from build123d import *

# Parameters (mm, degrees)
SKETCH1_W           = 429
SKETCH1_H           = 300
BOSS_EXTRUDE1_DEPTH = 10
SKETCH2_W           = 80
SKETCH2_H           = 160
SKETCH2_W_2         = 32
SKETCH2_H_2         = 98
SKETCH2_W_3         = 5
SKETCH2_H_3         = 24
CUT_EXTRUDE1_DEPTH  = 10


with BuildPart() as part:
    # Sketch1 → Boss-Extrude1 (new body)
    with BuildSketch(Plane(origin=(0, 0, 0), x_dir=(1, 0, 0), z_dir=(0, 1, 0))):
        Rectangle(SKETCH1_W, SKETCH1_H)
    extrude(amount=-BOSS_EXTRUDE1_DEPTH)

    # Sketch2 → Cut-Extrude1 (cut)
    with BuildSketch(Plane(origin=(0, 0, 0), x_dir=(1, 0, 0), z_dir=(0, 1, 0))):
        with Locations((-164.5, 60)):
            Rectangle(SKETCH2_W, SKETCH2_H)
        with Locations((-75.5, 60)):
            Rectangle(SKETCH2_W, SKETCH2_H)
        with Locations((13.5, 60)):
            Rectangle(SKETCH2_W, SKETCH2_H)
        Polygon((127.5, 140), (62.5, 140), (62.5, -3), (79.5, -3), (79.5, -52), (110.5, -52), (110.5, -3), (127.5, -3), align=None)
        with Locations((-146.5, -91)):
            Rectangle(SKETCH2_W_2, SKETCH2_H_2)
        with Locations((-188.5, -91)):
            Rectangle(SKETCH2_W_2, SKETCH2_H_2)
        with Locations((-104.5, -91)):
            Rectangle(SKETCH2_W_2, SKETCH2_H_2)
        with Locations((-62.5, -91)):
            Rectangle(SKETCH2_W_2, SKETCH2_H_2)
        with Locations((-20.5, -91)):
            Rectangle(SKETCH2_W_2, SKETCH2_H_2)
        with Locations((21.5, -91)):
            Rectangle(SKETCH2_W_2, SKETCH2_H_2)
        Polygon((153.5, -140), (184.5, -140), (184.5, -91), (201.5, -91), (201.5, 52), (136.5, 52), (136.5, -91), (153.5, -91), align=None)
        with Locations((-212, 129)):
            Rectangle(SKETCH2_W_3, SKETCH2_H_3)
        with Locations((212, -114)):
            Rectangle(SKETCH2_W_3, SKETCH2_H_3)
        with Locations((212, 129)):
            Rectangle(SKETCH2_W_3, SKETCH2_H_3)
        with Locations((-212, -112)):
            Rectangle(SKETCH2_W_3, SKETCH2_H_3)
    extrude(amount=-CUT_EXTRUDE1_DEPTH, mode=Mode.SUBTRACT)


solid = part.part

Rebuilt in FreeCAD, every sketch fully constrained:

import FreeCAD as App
import Part
import Sketcher
from FreeCAD import Vector

doc = App.newDocument("Part")
body = doc.addObject("PartDesign::Body", "Body")

sketch1 = body.newObject("Sketcher::SketchObject", "Sketch")
sketch1.AttachmentSupport = (doc.getObject("XZ_Plane"), [""])
sketch1.MapMode = "FlatFace"
sketch1.addGeometry(Part.LineSegment(Vector(-214.5, -150, 0), Vector(-214.5, 150, 0)), False)
sketch1.addGeometry(Part.LineSegment(Vector(-214.5, 150, 0), Vector(214.5, 150, 0)), False)
sketch1.addGeometry(Part.LineSegment(Vector(214.5, 150, 0), Vector(214.5, -150, 0)), False)
sketch1.addGeometry(Part.LineSegment(Vector(214.5, -150, 0), Vector(-214.5, -150, 0)), False)
sketch1.addConstraint(Sketcher.Constraint("Coincident", 0, 2, 1, 1))
sketch1.addConstraint(Sketcher.Constraint("Coincident", 1, 2, 2, 1))
sketch1.addConstraint(Sketcher.Constraint("Coincident", 2, 2, 3, 1))
sketch1.addConstraint(Sketcher.Constraint("Coincident", 3, 2, 0, 1))
sketch1.addConstraint(Sketcher.Constraint("Vertical", 0))
sketch1.addConstraint(Sketcher.Constraint("Horizontal", 1))
sketch1.addConstraint(Sketcher.Constraint("Vertical", 2))
sketch1.addConstraint(Sketcher.Constraint("Horizontal", 3))
sketch1.addConstraint(Sketcher.Constraint("Symmetric", 0, 2, 2, 2, -1, 1))
sketch1.addConstraint(Sketcher.Constraint("DistanceX", 1, 1, 1, 2, 429.0))
sketch1.addConstraint(Sketcher.Constraint("DistanceY", 0, 1, 0, 2, 300.0))
pad1 = body.newObject("PartDesign::Pad", "Pad")
pad1.Profile = sketch1
pad1.Length = 10

sketch2 = body.newObject("Sketcher::SketchObject", "Sketch001")
sketch2.AttachmentSupport = (doc.getObject("XZ_Plane"), [""])
sketch2.MapMode = "FlatFace"
sketch2.addGeometry(Part.LineSegment(Vector(-204.5, -140, 0), Vector(-204.5, 20, 0)), False)
sketch2.addGeometry(Part.LineSegment(Vector(-204.5, 20, 0), Vector(-124.5, 20, 0)), False)
sketch2.addGeometry(Part.LineSegment(Vector(-124.5, 20, 0), Vector(-124.5, -140, 0)), False)
sketch2.addGeometry(Part.LineSegment(Vector(-124.5, -140, 0), Vector(-204.5, -140, 0)), False)
sketch2.addGeometry(Part.LineSegment(Vector(-115.5, -140, 0), Vector(-115.5, 20, 0)), False)
sketch2.addGeometry(Part.LineSegment(Vector(-115.5, 20, 0), Vector(-35.5, 20, 0)), False)
sketch2.addGeometry(Part.LineSegment(Vector(-35.5, 20, 0), Vector(-35.5, -140, 0)), False)
sketch2.addGeometry(Part.LineSegment(Vector(-35.5, -140, 0), Vector(-115.5, -140, 0)), False)
sketch2.addGeometry(Part.LineSegment(Vector(-26.5, -140, 0), Vector(-26.5, 20, 0)), False)
sketch2.addGeometry(Part.LineSegment(Vector(-26.5, 20, 0), Vector(53.5, 20, 0)), False)
sketch2.addGeometry(Part.LineSegment(Vector(53.5, 20, 0), Vector(53.5, -140, 0)), False)
sketch2.addGeometry(Part.LineSegment(Vector(53.5, -140, 0), Vector(-26.5, -140, 0)), False)
sketch2.addGeometry(Part.LineSegment(Vector(127.5, -140, 0), Vector(62.5, -140, 0)), False)
sketch2.addGeometry(Part.LineSegment(Vector(62.5, -140, 0), Vector(62.5, 3, 0)), False)
sketch2.addGeometry(Part.LineSegment(Vector(62.5, 3, 0), Vector(79.5, 3, 0)), False)
sketch2.addGeometry(Part.LineSegment(Vector(79.5, 3, 0), Vector(79.5, 52, 0)), False)
sketch2.addGeometry(Part.LineSegment(Vector(79.5, 52, 0), Vector(110.5, 52, 0)), False)
sketch2.addGeometry(Part.LineSegment(Vector(110.5, 52, 0), Vector(110.5, 3, 0)), False)
sketch2.addGeometry(Part.LineSegment(Vector(110.5, 3, 0), Vector(127.5, 3, 0)), False)
sketch2.addGeometry(Part.LineSegment(Vector(127.5, 3, 0), Vector(127.5, -140, 0)), False)
sketch2.addGeometry(Part.LineSegment(Vector(-162.5, 42, 0), Vector(-162.5, 140, 0)), False)
sketch2.addGeometry(Part.LineSegment(Vector(-162.5, 140, 0), Vector(-130.5, 140, 0)), False)
sketch2.addGeometry(Part.LineSegment(Vector(-130.5, 140, 0), Vector(-130.5, 42, 0)), False)
sketch2.addGeometry(Part.LineSegment(Vector(-130.5, 42, 0), Vector(-162.5, 42, 0)), False)
sketch2.addGeometry(Part.LineSegment(Vector(-204.5, 42, 0), Vector(-204.5, 140, 0)), False)
sketch2.addGeometry(Part.LineSegment(Vector(-204.5, 140, 0), Vector(-172.5, 140, 0)), False)
sketch2.addGeometry(Part.LineSegment(Vector(-172.5, 140, 0), Vector(-172.5, 42, 0)), False)
sketch2.addGeometry(Part.LineSegment(Vector(-172.5, 42, 0), Vector(-204.5, 42, 0)), False)
sketch2.addGeometry(Part.LineSegment(Vector(-120.5, 42, 0), Vector(-120.5, 140, 0)), False)
sketch2.addGeometry(Part.LineSegment(Vector(-120.5, 140, 0), Vector(-88.5, 140, 0)), False)
sketch2.addGeometry(Part.LineSegment(Vector(-88.5, 140, 0), Vector(-88.5, 42, 0)), False)
sketch2.addGeometry(Part.LineSegment(Vector(-88.5, 42, 0), Vector(-120.5, 42, 0)), False)
sketch2.addGeometry(Part.LineSegment(Vector(-78.5, 42, 0), Vector(-78.5, 140, 0)), False)
sketch2.addGeometry(Part.LineSegment(Vector(-78.5, 140, 0), Vector(-46.5, 140, 0)), False)
sketch2.addGeometry(Part.LineSegment(Vector(-46.5, 140, 0), Vector(-46.5, 42, 0)), False)
sketch2.addGeometry(Part.LineSegment(Vector(-46.5, 42, 0), Vector(-78.5, 42, 0)), False)
sketch2.addGeometry(Part.LineSegment(Vector(-36.5, 42, 0), Vector(-36.5, 140, 0)), False)
sketch2.addGeometry(Part.LineSegment(Vector(-36.5, 140, 0), Vector(-4.5, 140, 0)), False)
sketch2.addGeometry(Part.LineSegment(Vector(-4.5, 140, 0), Vector(-4.5, 42, 0)), False)
sketch2.addGeometry(Part.LineSegment(Vector(-4.5, 42, 0), Vector(-36.5, 42, 0)), False)
sketch2.addGeometry(Part.LineSegment(Vector(5.5, 42, 0), Vector(5.5, 140, 0)), False)
sketch2.addGeometry(Part.LineSegment(Vector(5.5, 140, 0), Vector(37.5, 140, 0)), False)
sketch2.addGeometry(Part.LineSegment(Vector(37.5, 140, 0), Vector(37.5, 42, 0)), False)
sketch2.addGeometry(Part.LineSegment(Vector(37.5, 42, 0), Vector(5.5, 42, 0)), False)
sketch2.addGeometry(Part.LineSegment(Vector(153.5, 140, 0), Vector(184.5, 140, 0)), False)
sketch2.addGeometry(Part.LineSegment(Vector(184.5, 140, 0), Vector(184.5, 91, 0)), False)
sketch2.addGeometry(Part.LineSegment(Vector(184.5, 91, 0), Vector(201.5, 91, 0)), False)
sketch2.addGeometry(Part.LineSegment(Vector(201.5, 91, 0), Vector(201.5, -52, 0)), False)
sketch2.addGeometry(Part.LineSegment(Vector(201.5, -52, 0), Vector(136.5, -52, 0)), False)
sketch2.addGeometry(Part.LineSegment(Vector(136.5, -52, 0), Vector(136.5, 91, 0)), False)
sketch2.addGeometry(Part.LineSegment(Vector(136.5, 91, 0), Vector(153.5, 91, 0)), False)
sketch2.addGeometry(Part.LineSegment(Vector(153.5, 91, 0), Vector(153.5, 140, 0)), False)
sketch2.addGeometry(Part.LineSegment(Vector(-214.5, -141, 0), Vector(-214.5, -117, 0)), False)
sketch2.addGeometry(Part.LineSegment(Vector(-214.5, -117, 0), Vector(-209.5, -117, 0)), False)
sketch2.addGeometry(Part.LineSegment(Vector(-209.5, -117, 0), Vector(-209.5, -141, 0)), False)
sketch2.addGeometry(Part.LineSegment(Vector(-209.5, -141, 0), Vector(-214.5, -141, 0)), False)
sketch2.addGeometry(Part.LineSegment(Vector(209.5, 102, 0), Vector(209.5, 126, 0)), False)
sketch2.addGeometry(Part.LineSegment(Vector(209.5, 126, 0), Vector(214.5, 126, 0)), False)
sketch2.addGeometry(Part.LineSegment(Vector(214.5, 126, 0), Vector(214.5, 102, 0)), False)
sketch2.addGeometry(Part.LineSegment(Vector(214.5, 102, 0), Vector(209.5, 102, 0)), False)
sketch2.addGeometry(Part.LineSegment(Vector(209.5, -141, 0), Vector(209.5, -117, 0)), False)
sketch2.addGeometry(Part.LineSegment(Vector(209.5, -117, 0), Vector(214.5, -117, 0)), False)
sketch2.addGeometry(Part.LineSegment(Vector(214.5, -117, 0), Vector(214.5, -141, 0)), False)
sketch2.addGeometry(Part.LineSegment(Vector(214.5, -141, 0), Vector(209.5, -141, 0)), False)
sketch2.addGeometry(Part.LineSegment(Vector(-214.5, 100, 0), Vector(-214.5, 124, 0)), False)
sketch2.addGeometry(Part.LineSegment(Vector(-214.5, 124, 0), Vector(-209.5, 124, 0)), False)
sketch2.addGeometry(Part.LineSegment(Vector(-209.5, 124, 0), Vector(-209.5, 100, 0)), False)
sketch2.addGeometry(Part.LineSegment(Vector(-209.5, 100, 0), Vector(-214.5, 100, 0)), False)
sketch2.addConstraint(Sketcher.Constraint("Coincident", 0, 2, 1, 1))
sketch2.addConstraint(Sketcher.Constraint("Coincident", 1, 2, 2, 1))
sketch2.addConstraint(Sketcher.Constraint("Coincident", 2, 2, 3, 1))
sketch2.addConstraint(Sketcher.Constraint("Coincident", 3, 2, 0, 1))
sketch2.addConstraint(Sketcher.Constraint("Coincident", 4, 2, 5, 1))
sketch2.addConstraint(Sketcher.Constraint("Coincident", 5, 2, 6, 1))
sketch2.addConstraint(Sketcher.Constraint("Coincident", 6, 2, 7, 1))
sketch2.addConstraint(Sketcher.Constraint("Coincident", 7, 2, 4, 1))
sketch2.addConstraint(Sketcher.Constraint("Coincident", 8, 2, 9, 1))
sketch2.addConstraint(Sketcher.Constraint("Coincident", 9, 2, 10, 1))
sketch2.addConstraint(Sketcher.Constraint("Coincident", 10, 2, 11, 1))
sketch2.addConstraint(Sketcher.Constraint("Coincident", 11, 2, 8, 1))
sketch2.addConstraint(Sketcher.Constraint("Coincident", 12, 2, 13, 1))
sketch2.addConstraint(Sketcher.Constraint("Coincident", 13, 2, 14, 1))
sketch2.addConstraint(Sketcher.Constraint("Coincident", 14, 2, 15, 1))
sketch2.addConstraint(Sketcher.Constraint("Coincident", 15, 2, 16, 1))
sketch2.addConstraint(Sketcher.Constraint("Coincident", 16, 2, 17, 1))
sketch2.addConstraint(Sketcher.Constraint("Coincident", 17, 2, 18, 1))
sketch2.addConstraint(Sketcher.Constraint("Coincident", 18, 2, 19, 1))
sketch2.addConstraint(Sketcher.Constraint("Coincident", 19, 2, 12, 1))
sketch2.addConstraint(Sketcher.Constraint("Coincident", 20, 2, 21, 1))
sketch2.addConstraint(Sketcher.Constraint("Coincident", 21, 2, 22, 1))
sketch2.addConstraint(Sketcher.Constraint("Coincident", 22, 2, 23, 1))
sketch2.addConstraint(Sketcher.Constraint("Coincident", 23, 2, 20, 1))
sketch2.addConstraint(Sketcher.Constraint("Coincident", 24, 2, 25, 1))
sketch2.addConstraint(Sketcher.Constraint("Coincident", 25, 2, 26, 1))
sketch2.addConstraint(Sketcher.Constraint("Coincident", 26, 2, 27, 1))
sketch2.addConstraint(Sketcher.Constraint("Coincident", 27, 2, 24, 1))
sketch2.addConstraint(Sketcher.Constraint("Coincident", 28, 2, 29, 1))
sketch2.addConstraint(Sketcher.Constraint("Coincident", 29, 2, 30, 1))
sketch2.addConstraint(Sketcher.Constraint("Coincident", 30, 2, 31, 1))
sketch2.addConstraint(Sketcher.Constraint("Coincident", 31, 2, 28, 1))
sketch2.addConstraint(Sketcher.Constraint("Coincident", 32, 2, 33, 1))
sketch2.addConstraint(Sketcher.Constraint("Coincident", 33, 2, 34, 1))
sketch2.addConstraint(Sketcher.Constraint("Coincident", 34, 2, 35, 1))
sketch2.addConstraint(Sketcher.Constraint("Coincident", 35, 2, 32, 1))
sketch2.addConstraint(Sketcher.Constraint("Coincident", 36, 2, 37, 1))
sketch2.addConstraint(Sketcher.Constraint("Coincident", 37, 2, 38, 1))
sketch2.addConstraint(Sketcher.Constraint("Coincident", 38, 2, 39, 1))
sketch2.addConstraint(Sketcher.Constraint("Coincident", 39, 2, 36, 1))
sketch2.addConstraint(Sketcher.Constraint("Coincident", 40, 2, 41, 1))
sketch2.addConstraint(Sketcher.Constraint("Coincident", 41, 2, 42, 1))
sketch2.addConstraint(Sketcher.Constraint("Coincident", 42, 2, 43, 1))
sketch2.addConstraint(Sketcher.Constraint("Coincident", 43, 2, 40, 1))
sketch2.addConstraint(Sketcher.Constraint("Coincident", 44, 2, 45, 1))
sketch2.addConstraint(Sketcher.Constraint("Coincident", 45, 2, 46, 1))
sketch2.addConstraint(Sketcher.Constraint("Coincident", 46, 2, 47, 1))
sketch2.addConstraint(Sketcher.Constraint("Coincident", 47, 2, 48, 1))
sketch2.addConstraint(Sketcher.Constraint("Coincident", 48, 2, 49, 1))
sketch2.addConstraint(Sketcher.Constraint("Coincident", 49, 2, 50, 1))
sketch2.addConstraint(Sketcher.Constraint("Coincident", 50, 2, 51, 1))
sketch2.addConstraint(Sketcher.Constraint("Coincident", 51, 2, 44, 1))
sketch2.addConstraint(Sketcher.Constraint("Coincident", 52, 2, 53, 1))
sketch2.addConstraint(Sketcher.Constraint("Coincident", 53, 2, 54, 1))
sketch2.addConstraint(Sketcher.Constraint("Coincident", 54, 2, 55, 1))
sketch2.addConstraint(Sketcher.Constraint("Coincident", 55, 2, 52, 1))
sketch2.addConstraint(Sketcher.Constraint("Coincident", 56, 2, 57, 1))
sketch2.addConstraint(Sketcher.Constraint("Coincident", 57, 2, 58, 1))
sketch2.addConstraint(Sketcher.Constraint("Coincident", 58, 2, 59, 1))
sketch2.addConstraint(Sketcher.Constraint("Coincident", 59, 2, 56, 1))
sketch2.addConstraint(Sketcher.Constraint("Coincident", 60, 2, 61, 1))
sketch2.addConstraint(Sketcher.Constraint("Coincident", 61, 2, 62, 1))
sketch2.addConstraint(Sketcher.Constraint("Coincident", 62, 2, 63, 1))
sketch2.addConstraint(Sketcher.Constraint("Coincident", 63, 2, 60, 1))
sketch2.addConstraint(Sketcher.Constraint("Coincident", 64, 2, 65, 1))
sketch2.addConstraint(Sketcher.Constraint("Coincident", 65, 2, 66, 1))
sketch2.addConstraint(Sketcher.Constraint("Coincident", 66, 2, 67, 1))
sketch2.addConstraint(Sketcher.Constraint("Coincident", 67, 2, 64, 1))
sketch2.addConstraint(Sketcher.Constraint("Vertical", 0))
sketch2.addConstraint(Sketcher.Constraint("Horizontal", 1))
sketch2.addConstraint(Sketcher.Constraint("Vertical", 2))
sketch2.addConstraint(Sketcher.Constraint("Horizontal", 3))
sketch2.addConstraint(Sketcher.Constraint("Vertical", 4))
sketch2.addConstraint(Sketcher.Constraint("Horizontal", 5))
sketch2.addConstraint(Sketcher.Constraint("Vertical", 6))
sketch2.addConstraint(Sketcher.Constraint("Horizontal", 7))
sketch2.addConstraint(Sketcher.Constraint("Vertical", 8))
sketch2.addConstraint(Sketcher.Constraint("Horizontal", 9))
sketch2.addConstraint(Sketcher.Constraint("Vertical", 10))
sketch2.addConstraint(Sketcher.Constraint("Horizontal", 11))
sketch2.addConstraint(Sketcher.Constraint("Horizontal", 12))
sketch2.addConstraint(Sketcher.Constraint("Vertical", 13))
sketch2.addConstraint(Sketcher.Constraint("Horizontal", 14))
sketch2.addConstraint(Sketcher.Constraint("Vertical", 15))
sketch2.addConstraint(Sketcher.Constraint("Horizontal", 16))
sketch2.addConstraint(Sketcher.Constraint("Vertical", 17))
sketch2.addConstraint(Sketcher.Constraint("Horizontal", 18))
sketch2.addConstraint(Sketcher.Constraint("Vertical", 19))
sketch2.addConstraint(Sketcher.Constraint("Vertical", 20))
sketch2.addConstraint(Sketcher.Constraint("Horizontal", 21))
sketch2.addConstraint(Sketcher.Constraint("Vertical", 22))
sketch2.addConstraint(Sketcher.Constraint("Horizontal", 23))
sketch2.addConstraint(Sketcher.Constraint("Vertical", 24))
sketch2.addConstraint(Sketcher.Constraint("Horizontal", 25))
sketch2.addConstraint(Sketcher.Constraint("Vertical", 26))
sketch2.addConstraint(Sketcher.Constraint("Horizontal", 27))
sketch2.addConstraint(Sketcher.Constraint("Vertical", 28))
sketch2.addConstraint(Sketcher.Constraint("Horizontal", 29))
sketch2.addConstraint(Sketcher.Constraint("Vertical", 30))
sketch2.addConstraint(Sketcher.Constraint("Horizontal", 31))
sketch2.addConstraint(Sketcher.Constraint("Vertical", 32))
sketch2.addConstraint(Sketcher.Constraint("Horizontal", 33))
sketch2.addConstraint(Sketcher.Constraint("Vertical", 34))
sketch2.addConstraint(Sketcher.Constraint("Horizontal", 35))
sketch2.addConstraint(Sketcher.Constraint("Vertical", 36))
sketch2.addConstraint(Sketcher.Constraint("Horizontal", 37))
sketch2.addConstraint(Sketcher.Constraint("Vertical", 38))
sketch2.addConstraint(Sketcher.Constraint("Horizontal", 39))
sketch2.addConstraint(Sketcher.Constraint("Vertical", 40))
sketch2.addConstraint(Sketcher.Constraint("Horizontal", 41))
sketch2.addConstraint(Sketcher.Constraint("Vertical", 42))
sketch2.addConstraint(Sketcher.Constraint("Horizontal", 43))
sketch2.addConstraint(Sketcher.Constraint("Horizontal", 44))
sketch2.addConstraint(Sketcher.Constraint("Vertical", 45))
sketch2.addConstraint(Sketcher.Constraint("Horizontal", 46))
sketch2.addConstraint(Sketcher.Constraint("Vertical", 47))
sketch2.addConstraint(Sketcher.Constraint("Horizontal", 48))
sketch2.addConstraint(Sketcher.Constraint("Vertical", 49))
sketch2.addConstraint(Sketcher.Constraint("Horizontal", 50))
sketch2.addConstraint(Sketcher.Constraint("Vertical", 51))
sketch2.addConstraint(Sketcher.Constraint("Vertical", 52))
sketch2.addConstraint(Sketcher.Constraint("Horizontal", 53))
sketch2.addConstraint(Sketcher.Constraint("Vertical", 54))
sketch2.addConstraint(Sketcher.Constraint("Horizontal", 55))
sketch2.addConstraint(Sketcher.Constraint("Vertical", 56))
sketch2.addConstraint(Sketcher.Constraint("Horizontal", 57))
sketch2.addConstraint(Sketcher.Constraint("Vertical", 58))
sketch2.addConstraint(Sketcher.Constraint("Horizontal", 59))
sketch2.addConstraint(Sketcher.Constraint("Vertical", 60))
sketch2.addConstraint(Sketcher.Constraint("Horizontal", 61))
sketch2.addConstraint(Sketcher.Constraint("Vertical", 62))
sketch2.addConstraint(Sketcher.Constraint("Horizontal", 63))
sketch2.addConstraint(Sketcher.Constraint("Vertical", 64))
sketch2.addConstraint(Sketcher.Constraint("Horizontal", 65))
sketch2.addConstraint(Sketcher.Constraint("Vertical", 66))
sketch2.addConstraint(Sketcher.Constraint("Horizontal", 67))
sketch2.addConstraint(Sketcher.Constraint("Symmetric", 53, 2, 60, 2, -2))
sketch2.addConstraint(Sketcher.Constraint("Symmetric", 55, 2, 62, 2, -2))
sketch2.addConstraint(Sketcher.Constraint("Symmetric", 3, 2, 24, 2, -1))
sketch2.addConstraint(Sketcher.Constraint("Horizontal", 1, 2, 4, 2))
sketch2.addConstraint(Sketcher.Constraint("Horizontal", 3, 2, 6, 2))
sketch2.addConstraint(Sketcher.Constraint("Horizontal", 5, 2, 8, 2))
sketch2.addConstraint(Sketcher.Constraint("Horizontal", 7, 2, 10, 2))
sketch2.addConstraint(Sketcher.Constraint("Horizontal", 11, 2, 12, 2))
sketch2.addConstraint(Sketcher.Constraint("Horizontal", 14, 2, 17, 2))
sketch2.addConstraint(Sketcher.Constraint("Horizontal", 21, 2, 24, 2))
sketch2.addConstraint(Sketcher.Constraint("Horizontal", 23, 2, 26, 2))
sketch2.addConstraint(Sketcher.Constraint("Horizontal", 25, 2, 28, 2))
sketch2.addConstraint(Sketcher.Constraint("Horizontal", 27, 2, 30, 2))
sketch2.addConstraint(Sketcher.Constraint("Horizontal", 29, 2, 32, 2))
sketch2.addConstraint(Sketcher.Constraint("Horizontal", 31, 2, 34, 2))
sketch2.addConstraint(Sketcher.Constraint("Horizontal", 33, 2, 36, 2))
sketch2.addConstraint(Sketcher.Constraint("Horizontal", 35, 2, 38, 2))
sketch2.addConstraint(Sketcher.Constraint("Horizontal", 37, 2, 40, 2))
sketch2.addConstraint(Sketcher.Constraint("Horizontal", 39, 2, 42, 2))
sketch2.addConstraint(Sketcher.Constraint("Horizontal", 41, 2, 44, 2))
sketch2.addConstraint(Sketcher.Constraint("Horizontal", 46, 2, 49, 2))
sketch2.addConstraint(Sketcher.Constraint("Vertical", 59, 2, 60, 2))
sketch2.addConstraint(Sketcher.Constraint("Vertical", 58, 2, 61, 2))
sketch2.addConstraint(Sketcher.Constraint("Vertical", 55, 2, 64, 2))
sketch2.addConstraint(Sketcher.Constraint("Vertical", 54, 2, 65, 2))
sketch2.addConstraint(Sketcher.Constraint("Equal", 3, 5))
sketch2.addConstraint(Sketcher.Constraint("Equal", 7, 9))
sketch2.addConstraint(Sketcher.Constraint("Equal", 14, 18))
sketch2.addConstraint(Sketcher.Constraint("Equal", 23, 25))
sketch2.addConstraint(Sketcher.Constraint("Equal", 27, 29))
sketch2.addConstraint(Sketcher.Constraint("Equal", 31, 33))
sketch2.addConstraint(Sketcher.Constraint("Equal", 35, 37))
sketch2.addConstraint(Sketcher.Constraint("Equal", 39, 41))
sketch2.addConstraint(Sketcher.Constraint("Equal", 16, 44))
sketch2.addConstraint(Sketcher.Constraint("Equal", 18, 46))
sketch2.addConstraint(Sketcher.Constraint("Equal", 12, 48))
sketch2.addConstraint(Sketcher.Constraint("Equal", 17, 45))
sketch2.addConstraint(Sketcher.Constraint("Equal", 19, 47))
sketch2.addConstraint(Sketcher.Constraint("Equal", 54, 56))
sketch2.addConstraint(Sketcher.Constraint("Equal", 62, 64))
sketch2.addConstraint(Sketcher.Constraint("DistanceX", 1, 1, 1, 2, 80.0))
sketch2.addConstraint(Sketcher.Constraint("DistanceX", 12, 2, 12, 1, 65.0))
sketch2.addConstraint(Sketcher.Constraint("DistanceX", 14, 1, 14, 2, 17.0))
sketch2.addConstraint(Sketcher.Constraint("DistanceX", 21, 1, 21, 2, 32.0))
sketch2.addConstraint(Sketcher.Constraint("DistanceX", 53, 1, 53, 2, 5.0))
sketch2.addConstraint(Sketcher.Constraint("DistanceY", 0, 1, 0, 2, 160.0))
sketch2.addConstraint(Sketcher.Constraint("DistanceY", 13, 1, 13, 2, 143.0))
sketch2.addConstraint(Sketcher.Constraint("DistanceY", 15, 1, 15, 2, 49.0))
sketch2.addConstraint(Sketcher.Constraint("DistanceY", 20, 1, 20, 2, 98.0))
sketch2.addConstraint(Sketcher.Constraint("DistanceY", 52, 1, 52, 2, 24.0))
sketch2.addConstraint(Sketcher.Constraint("DistanceY", -1, 1, 0, 2, 20.0))
sketch2.addConstraint(Sketcher.Constraint("DistanceY", 52, 2, -1, 1, 117.0))
sketch2.addConstraint(Sketcher.Constraint("DistanceY", -1, 1, 56, 2, 126.0))
sketch2.addConstraint(Sketcher.Constraint("DistanceY", -1, 1, 64, 2, 124.0))
sketch2.addConstraint(Sketcher.Constraint("DistanceX", 0, 2, -1, 1, 204.5))
sketch2.addConstraint(Sketcher.Constraint("DistanceX", 4, 2, -1, 1, 115.5))
sketch2.addConstraint(Sketcher.Constraint("DistanceX", 8, 2, -1, 1, 26.5))
sketch2.addConstraint(Sketcher.Constraint("DistanceX", -1, 1, 12, 2, 62.5))
sketch2.addConstraint(Sketcher.Constraint("DistanceX", 20, 2, -1, 1, 162.5))
sketch2.addConstraint(Sketcher.Constraint("DistanceX", 28, 2, -1, 1, 120.5))
sketch2.addConstraint(Sketcher.Constraint("DistanceX", 32, 2, -1, 1, 78.5))
sketch2.addConstraint(Sketcher.Constraint("DistanceX", 36, 2, -1, 1, 36.5))
sketch2.addConstraint(Sketcher.Constraint("DistanceX", -1, 1, 40, 2, 5.5))
sketch2.addConstraint(Sketcher.Constraint("DistanceX", -1, 1, 44, 2, 184.5))
sketch2.addConstraint(Sketcher.Constraint("DistanceX", 52, 2, -1, 1, 214.5))
pocket1 = body.newObject("PartDesign::Pocket", "Pocket")
pocket1.Profile = sketch2
pocket1.Length = 10
pocket1.Reversed = True

doc.recompute()
